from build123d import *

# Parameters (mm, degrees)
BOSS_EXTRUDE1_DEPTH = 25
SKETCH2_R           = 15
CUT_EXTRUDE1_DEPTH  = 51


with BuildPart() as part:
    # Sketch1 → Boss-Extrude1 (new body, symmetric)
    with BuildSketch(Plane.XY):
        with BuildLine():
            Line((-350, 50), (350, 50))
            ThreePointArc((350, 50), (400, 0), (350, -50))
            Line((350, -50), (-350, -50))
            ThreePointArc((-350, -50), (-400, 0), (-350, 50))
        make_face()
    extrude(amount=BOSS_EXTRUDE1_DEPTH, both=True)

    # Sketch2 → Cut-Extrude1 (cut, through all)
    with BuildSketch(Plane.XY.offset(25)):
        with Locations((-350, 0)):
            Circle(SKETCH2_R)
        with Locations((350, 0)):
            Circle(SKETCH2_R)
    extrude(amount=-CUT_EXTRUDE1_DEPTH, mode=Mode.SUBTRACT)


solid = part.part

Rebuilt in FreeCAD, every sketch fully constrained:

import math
import FreeCAD as App
import Part
import Sketcher
from FreeCAD import Vector
Q = App.Units.Quantity

doc = App.newDocument("Part")
body = doc.addObject("PartDesign::Body", "Body")

sketch1 = doc.addObject("Sketcher::SketchObject", "Sketch")
body.addObject(sketch1)
sketch1.AttachmentSupport = (doc.XY_Plane, [""])
sketch1.MapMode = "FlatFace"
sketch1.addGeometry(Part.LineSegment(Vector(350, 50, 0), Vector(-350, 50, 0)), False)
sketch1.addGeometry(Part.ArcOfCircle(Part.Circle(Vector(-350, 0, 0), Vector(0, 0, 1), 50), math.radians(90), math.radians(270)), False)
sketch1.addGeometry(Part.LineSegment(Vector(-350, -50, 0), Vector(350, -50, 0)), False)
sketch1.addGeometry(Part.ArcOfCircle(Part.Circle(Vector(350, 0, 0), Vector(0, 0, 1), 50), math.radians(-90), math.radians(90)), False)
sketch1.addConstraint(Sketcher.Constraint("Tangent", 0, 2, 1, 1))
sketch1.addConstraint(Sketcher.Constraint("Tangent", 1, 2, 2, 1))
sketch1.addConstraint(Sketcher.Constraint("Tangent", 2, 2, 3, 1))
sketch1.addConstraint(Sketcher.Constraint("Tangent", 3, 2, 0, 1))
sketch1.addConstraint(Sketcher.Constraint("Horizontal", 0))
sketch1.addConstraint(Sketcher.Constraint("Horizontal", 2))
sketch1.addConstraint(Sketcher.Constraint("Symmetric", 1, 3, 3, 3, -1, 1))
sketch1.addConstraint(Sketcher.Constraint("Radius", 1, Q("50 mm")))
sketch1.addConstraint(Sketcher.Constraint("DistanceX", 0, 2, 0, 1, Q("700 mm")))
pad1 = doc.addObject("PartDesign::Pad", "Pad")
body.addObject(pad1)
pad1.Profile = sketch1
pad1.Length = 50
pad1.Midplane = True

sketch2 = doc.addObject("Sketcher::SketchObject", "Sketch001")
body.addObject(sketch2)
sketch2.AttachmentSupport = (doc.XY_Plane, [""])
sketch2.MapMode = "FlatFace"
sketch2.AttachmentOffset = App.Placement(Vector(0, 0, 25), App.Rotation())
sketch2.addGeometry(Part.Circle(Vector(-350, 0, 0), Vector(0, 0, 1), 15), False)
sketch2.addGeometry(Part.Circle(Vector(350, 0, 0), Vector(0, 0, 1), 15), False)
sketch2.addConstraint(Sketcher.Constraint("Equal", 0, 1))
sketch2.addConstraint(Sketcher.Constraint("Symmetric", 0, 3, 1, 3, -1, 1))
sketch2.addConstraint(Sketcher.Constraint("PointOnObject", 0, 3, -1))
sketch2.addConstraint(Sketcher.Constraint("Diameter", 0, Q("30 mm")))
sketch2.addConstraint(Sketcher.Constraint("DistanceX", 0, 3, -1, 1, Q("350 mm")))
pocket1 = doc.addObject("PartDesign::Pocket", "Pocket")
body.addObject(pocket1)
pocket1.Profile = sketch2
pocket1.Type = "ThroughAll"

doc.recompute()
